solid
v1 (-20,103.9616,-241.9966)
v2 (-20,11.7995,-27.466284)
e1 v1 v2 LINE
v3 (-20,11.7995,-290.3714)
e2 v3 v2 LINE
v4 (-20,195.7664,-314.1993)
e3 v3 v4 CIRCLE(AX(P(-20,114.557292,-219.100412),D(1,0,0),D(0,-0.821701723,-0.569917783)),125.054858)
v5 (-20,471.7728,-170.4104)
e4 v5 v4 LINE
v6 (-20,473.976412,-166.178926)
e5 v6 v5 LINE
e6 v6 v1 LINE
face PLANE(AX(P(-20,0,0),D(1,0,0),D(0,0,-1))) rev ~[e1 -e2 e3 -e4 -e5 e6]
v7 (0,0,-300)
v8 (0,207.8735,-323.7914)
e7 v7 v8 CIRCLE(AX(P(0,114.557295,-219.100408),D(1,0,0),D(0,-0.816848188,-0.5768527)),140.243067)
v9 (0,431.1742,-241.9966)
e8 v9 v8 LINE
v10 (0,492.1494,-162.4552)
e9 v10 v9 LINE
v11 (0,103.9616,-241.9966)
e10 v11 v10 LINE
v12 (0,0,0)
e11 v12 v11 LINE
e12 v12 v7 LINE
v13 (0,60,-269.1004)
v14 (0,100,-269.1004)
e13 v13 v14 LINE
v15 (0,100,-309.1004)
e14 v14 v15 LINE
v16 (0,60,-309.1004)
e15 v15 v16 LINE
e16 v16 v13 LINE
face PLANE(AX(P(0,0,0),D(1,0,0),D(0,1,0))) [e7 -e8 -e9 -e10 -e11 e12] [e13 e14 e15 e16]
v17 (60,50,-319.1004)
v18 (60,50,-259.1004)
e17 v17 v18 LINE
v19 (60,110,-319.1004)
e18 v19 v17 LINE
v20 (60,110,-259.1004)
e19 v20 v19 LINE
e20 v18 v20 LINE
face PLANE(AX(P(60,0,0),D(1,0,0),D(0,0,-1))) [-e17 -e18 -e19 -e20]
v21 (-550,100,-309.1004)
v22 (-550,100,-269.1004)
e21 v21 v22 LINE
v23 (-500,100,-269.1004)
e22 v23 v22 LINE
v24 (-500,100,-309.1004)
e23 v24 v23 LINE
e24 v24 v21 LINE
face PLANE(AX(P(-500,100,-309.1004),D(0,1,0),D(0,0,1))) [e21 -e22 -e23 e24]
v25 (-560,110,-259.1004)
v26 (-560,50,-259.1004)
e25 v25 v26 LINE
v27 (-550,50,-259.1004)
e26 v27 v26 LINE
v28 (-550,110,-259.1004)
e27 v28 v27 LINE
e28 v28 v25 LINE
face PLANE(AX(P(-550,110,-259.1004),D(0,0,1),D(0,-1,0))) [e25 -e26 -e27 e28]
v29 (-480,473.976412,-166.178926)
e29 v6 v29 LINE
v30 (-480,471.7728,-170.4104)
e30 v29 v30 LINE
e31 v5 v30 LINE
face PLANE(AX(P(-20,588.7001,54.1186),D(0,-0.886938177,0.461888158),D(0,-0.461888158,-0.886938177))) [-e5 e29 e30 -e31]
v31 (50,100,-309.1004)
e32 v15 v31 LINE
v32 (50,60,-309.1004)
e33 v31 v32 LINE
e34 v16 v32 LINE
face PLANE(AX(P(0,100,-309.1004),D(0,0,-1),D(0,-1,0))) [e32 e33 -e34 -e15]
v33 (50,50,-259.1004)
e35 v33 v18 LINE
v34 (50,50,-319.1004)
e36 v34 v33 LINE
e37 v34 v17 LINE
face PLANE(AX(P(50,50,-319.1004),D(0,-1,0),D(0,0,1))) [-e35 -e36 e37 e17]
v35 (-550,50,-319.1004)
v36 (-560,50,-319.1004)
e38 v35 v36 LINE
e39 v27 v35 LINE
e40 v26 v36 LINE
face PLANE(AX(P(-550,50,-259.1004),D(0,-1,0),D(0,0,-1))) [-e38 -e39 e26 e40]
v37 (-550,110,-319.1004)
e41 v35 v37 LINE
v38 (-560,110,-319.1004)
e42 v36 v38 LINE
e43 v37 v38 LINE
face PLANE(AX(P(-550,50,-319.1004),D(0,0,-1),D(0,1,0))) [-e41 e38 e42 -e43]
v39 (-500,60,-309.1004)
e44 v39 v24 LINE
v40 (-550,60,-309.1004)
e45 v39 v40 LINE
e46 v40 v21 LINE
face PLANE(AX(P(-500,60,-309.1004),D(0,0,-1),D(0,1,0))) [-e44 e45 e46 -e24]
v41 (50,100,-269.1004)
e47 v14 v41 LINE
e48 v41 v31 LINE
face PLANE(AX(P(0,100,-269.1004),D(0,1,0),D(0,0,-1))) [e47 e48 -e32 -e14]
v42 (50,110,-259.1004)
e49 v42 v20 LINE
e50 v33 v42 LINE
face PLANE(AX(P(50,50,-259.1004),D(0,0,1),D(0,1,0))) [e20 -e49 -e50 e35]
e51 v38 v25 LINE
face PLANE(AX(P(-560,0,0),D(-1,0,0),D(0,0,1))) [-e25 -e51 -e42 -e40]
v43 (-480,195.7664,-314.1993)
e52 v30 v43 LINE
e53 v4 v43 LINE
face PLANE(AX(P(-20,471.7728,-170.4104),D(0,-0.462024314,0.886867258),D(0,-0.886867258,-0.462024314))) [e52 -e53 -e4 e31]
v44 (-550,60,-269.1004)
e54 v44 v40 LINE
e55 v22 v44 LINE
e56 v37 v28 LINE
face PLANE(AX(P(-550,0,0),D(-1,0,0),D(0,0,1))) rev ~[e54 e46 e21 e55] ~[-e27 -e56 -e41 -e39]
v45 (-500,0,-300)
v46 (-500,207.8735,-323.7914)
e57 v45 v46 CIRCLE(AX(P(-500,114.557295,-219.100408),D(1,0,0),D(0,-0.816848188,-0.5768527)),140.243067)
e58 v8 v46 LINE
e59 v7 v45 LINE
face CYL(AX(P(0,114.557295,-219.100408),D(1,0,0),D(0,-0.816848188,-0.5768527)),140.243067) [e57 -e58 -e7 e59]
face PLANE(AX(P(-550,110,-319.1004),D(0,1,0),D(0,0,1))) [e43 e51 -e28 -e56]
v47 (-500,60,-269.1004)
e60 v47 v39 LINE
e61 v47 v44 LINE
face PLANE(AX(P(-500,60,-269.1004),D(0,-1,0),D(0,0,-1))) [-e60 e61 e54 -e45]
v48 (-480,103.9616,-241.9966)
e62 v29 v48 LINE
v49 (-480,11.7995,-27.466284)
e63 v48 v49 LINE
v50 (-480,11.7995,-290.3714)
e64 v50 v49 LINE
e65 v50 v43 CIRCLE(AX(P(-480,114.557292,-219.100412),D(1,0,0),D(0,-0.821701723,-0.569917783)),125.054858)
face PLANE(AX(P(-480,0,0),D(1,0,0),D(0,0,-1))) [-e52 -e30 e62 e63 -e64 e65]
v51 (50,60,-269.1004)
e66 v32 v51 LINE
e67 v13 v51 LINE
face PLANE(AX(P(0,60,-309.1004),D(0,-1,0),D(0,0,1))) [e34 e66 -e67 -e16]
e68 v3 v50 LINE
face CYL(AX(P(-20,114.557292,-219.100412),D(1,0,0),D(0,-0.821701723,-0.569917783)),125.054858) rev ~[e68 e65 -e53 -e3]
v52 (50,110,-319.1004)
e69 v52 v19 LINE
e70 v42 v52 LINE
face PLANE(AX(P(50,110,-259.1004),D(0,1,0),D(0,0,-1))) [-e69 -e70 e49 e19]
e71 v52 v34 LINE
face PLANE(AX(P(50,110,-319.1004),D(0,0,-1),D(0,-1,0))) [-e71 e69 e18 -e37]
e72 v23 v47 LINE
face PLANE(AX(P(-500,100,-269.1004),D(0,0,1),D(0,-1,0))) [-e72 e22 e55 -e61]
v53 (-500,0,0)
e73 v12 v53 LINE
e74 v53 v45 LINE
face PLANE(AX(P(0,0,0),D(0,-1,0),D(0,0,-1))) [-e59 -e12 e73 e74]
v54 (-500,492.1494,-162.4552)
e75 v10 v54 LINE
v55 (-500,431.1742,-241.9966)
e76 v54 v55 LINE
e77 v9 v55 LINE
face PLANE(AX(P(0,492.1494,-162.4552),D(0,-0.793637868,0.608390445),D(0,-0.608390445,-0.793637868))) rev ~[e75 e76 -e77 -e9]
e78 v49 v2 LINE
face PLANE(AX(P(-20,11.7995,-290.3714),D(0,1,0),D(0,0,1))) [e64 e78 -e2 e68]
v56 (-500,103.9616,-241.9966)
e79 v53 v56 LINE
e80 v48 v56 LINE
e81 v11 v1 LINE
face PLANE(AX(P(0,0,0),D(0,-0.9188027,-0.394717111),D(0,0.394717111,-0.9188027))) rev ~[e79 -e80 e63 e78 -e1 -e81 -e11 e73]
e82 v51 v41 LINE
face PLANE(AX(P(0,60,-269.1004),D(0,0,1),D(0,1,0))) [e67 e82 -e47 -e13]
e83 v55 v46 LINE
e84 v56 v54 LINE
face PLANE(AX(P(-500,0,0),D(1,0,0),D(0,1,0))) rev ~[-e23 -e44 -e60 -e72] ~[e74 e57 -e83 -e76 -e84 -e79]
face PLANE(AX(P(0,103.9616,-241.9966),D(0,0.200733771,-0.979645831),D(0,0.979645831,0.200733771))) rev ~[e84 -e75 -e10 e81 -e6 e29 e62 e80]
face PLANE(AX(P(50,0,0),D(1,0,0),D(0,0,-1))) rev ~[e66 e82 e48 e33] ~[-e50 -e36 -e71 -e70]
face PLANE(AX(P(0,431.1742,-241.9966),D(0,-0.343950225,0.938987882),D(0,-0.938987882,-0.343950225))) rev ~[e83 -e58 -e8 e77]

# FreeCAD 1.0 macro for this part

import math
import FreeCAD as App
import Part
import Sketcher
Q = App.Units.Quantity


def add_polygon(sketch, points):
    """Adds a closed chain of lines whose ends are joined by coincident constraints."""
    first, n = sketch.GeometryCount, len(points)
    for a, b in zip(points, points[1:] + points[:1]):
        sketch.addGeometry(Part.LineSegment(App.Vector(*a, 0), App.Vector(*b, 0)), False)
    for i in range(n):
        sketch.addConstraint(Sketcher.Constraint("Coincident", first + i, 2, first + (i + 1) % n, 1))

doc = App.newDocument("Part")
body = doc.addObject("PartDesign::Body", "Body")

sketch1 = body.newObject("Sketcher::SketchObject", "Sketch")
sketch1.AttachmentSupport = (doc.getObject("YZ_Plane"), [""])
sketch1.MapMode = "FlatFace"
sketch1.addGeometry([
    Part.LineSegment(App.Vector(104, -242, 0), App.Vector(0, 0, 0)),
    Part.LineSegment(App.Vector(0, 0, 0), App.Vector(0, -300, 0)),
    Part.ArcOfCircle(Part.Circle(App.Vector(115, -219, 0), App.Vector(0, 0, 1), 140), math.radians(-145), math.radians(-48)),
    Part.LineSegment(App.Vector(208, -324, 0), App.Vector(431, -242, 0)),
    Part.LineSegment(App.Vector(431, -242, 0), App.Vector(492, -162, 0)),
    Part.LineSegment(App.Vector(492, -162, 0), App.Vector(104, -242, 0)),
], False)
sketch1.addConstraint([
    Sketcher.Constraint("Coincident", 0, 2, 1, 1),
    Sketcher.Constraint("Coincident", 1, 2, 2, 1),
    Sketcher.Constraint("Coincident", 2, 2, 3, 1),
    Sketcher.Constraint("Coincident", 3, 2, 4, 1),
    Sketcher.Constraint("Coincident", 4, 2, 5, 1),
    Sketcher.Constraint("Coincident", 5, 2, 0, 1),
    Sketcher.Constraint("Vertical", 1),
    Sketcher.Constraint("Coincident", 0, 2, -1, 1),
    Sketcher.Constraint("Horizontal", 3, 2, 5, 2),
    Sketcher.Constraint("DistanceY", 1, 2, 1, 1, 300.0),
    Sketcher.Constraint("Radius", 2, 140.243),
    Sketcher.Constraint("Angle", 5, Q("-168.4201 deg")),
    Sketcher.Constraint("Distance", 3, 237.81),
    Sketcher.Constraint("DistanceY", 2, 2, 2, 3, 104.691),
    Sketcher.Constraint("DistanceX", 2, 3, 3, 2, 316.617),
    Sketcher.Constraint("DistanceX", 2, 2, 4, 2, 284.276),
    Sketcher.Constraint("DistanceX", 5, 2, 2, 2, 103.912),
    Sketcher.Constraint("Distance", 0, 263.3826),
])
pad1 = body.newObject("PartDesign::Pad", "Pad")
pad1.Profile = sketch1
pad1.Length = 500
pad1.Reversed = True

sketch2 = body.newObject("Sketcher::SketchObject", "Sketch001")
sketch2.AttachmentSupport = (doc.getObject("YZ_Plane"), [""])
sketch2.MapMode = "FlatFace"
sketch2.AttachmentOffset = App.Placement(App.Vector(0, 0, -20), App.Rotation())
sketch2.addGeometry([
    Part.LineSegment(App.Vector(12, 61, 0), App.Vector(12, -290, 0)),
    Part.ArcOfCircle(Part.Circle(App.Vector(115, -219, 0), App.Vector(0, 0, 1), 125), math.radians(-145), math.radians(-50)),
    Part.LineSegment(App.Vector(196, -314, 0), App.Vector(472, -170, 0)),
    Part.LineSegment(App.Vector(472, -170, 0), App.Vector(589, 54, 0)),
    Part.LineSegment(App.Vector(589, 54, 0), App.Vector(12, 61, 0)),
], False)
sketch2.addConstraint([
    Sketcher.Constraint("Coincident", 0, 2, 1, 1),
    Sketcher.Constraint("Coincident", 1, 2, 2, 1),
    Sketcher.Constraint("Coincident", 2, 2, 3, 1),
    Sketcher.Constraint("Coincident", 3, 2, 4, 1),
    Sketcher.Constraint("Coincident", 4, 2, 0, 1),
    Sketcher.Constraint("Vertical", 0),
    Sketcher.Constraint("Radius", 1, 125.0549),
    Sketcher.Constraint("DistanceX", -1, 1, 3, 2, 588.7),
    Sketcher.Constraint("Angle", 3, Q("62.491 deg")),
    Sketcher.Constraint("DistanceY", 1, 3, 2, 2, 48.69),
    Sketcher.Constraint("DistanceY", 0, 2, 3, 2, 344.49),
    Sketcher.Constraint("Distance", 2, 311.215),
    Sketcher.Constraint("DistanceY", 0, 2, 0, 1, 351.6635),
    Sketcher.Constraint("DistanceY", -1, 1, 4, 2, 61.292),
    Sketcher.Constraint("DistanceY", 0, 2, 1, 3, 71.271),
    Sketcher.Constraint("DistanceX", 1, 3, 1, 2, 81.209),
])
pocket1 = body.newObject("PartDesign::Pocket", "Pocket")
pocket1.Profile = sketch2
pocket1.Length = 460

sketch3 = body.newObject("Sketcher::SketchObject", "Sketch002")
sketch3.AttachmentSupport = (doc.getObject("YZ_Plane"), [""])
sketch3.MapMode = "FlatFace"
add_polygon(sketch3, [(100, -309), (100, -269), (60, -269), (60, -309)])
sketch3.addConstraint([
    Sketcher.Constraint("Vertical", 0),
    Sketcher.Constraint("Horizontal", 1),
    Sketcher.Constraint("Vertical", 2),
    Sketcher.Constraint("Horizontal", 3),
    Sketcher.Constraint("Equal", 3, 0),
    Sketcher.Constraint("DistanceX", 1, 2, 1, 1, 40.0),
    Sketcher.Constraint("DistanceX", -1, 1, 1, 2, 60.0),
    Sketcher.Constraint("DistanceY", 0, 2, -1, 1, 269.1004),
])
pad2 = body.newObject("PartDesign::Pad", "Pad001")
pad2.Profile = sketch3
pad2.Length = 50

sketch4 = body.newObject("Sketcher::SketchObject", "Sketch003")
sketch4.AttachmentSupport = (doc.getObject("YZ_Plane"), [""])
sketch4.MapMode = "FlatFace"
sketch4.AttachmentOffset = App.Placement(App.Vector(0, 0, 50), App.Rotation())
add_polygon(sketch4, [(110, -319), (110, -259), (50, -259), (50, -319)])
sketch4.addConstraint([
    Sketcher.Constraint("Vertical", 0),
    Sketcher.Constraint("Horizontal", 1),
    Sketcher.Constraint("Vertical", 2),
    Sketcher.Constraint("Horizontal", 3),
    Sketcher.Constraint("Equal", 3, 0),
    Sketcher.Constraint("DistanceX", 1, 2, 1, 1, 60.0),
    Sketcher.Constraint("DistanceX", -1, 1, 0, 2, 110.0),
    Sketcher.Constraint("DistanceY", 0, 2, -1, 1, 259.1004),
])
pad3 = body.newObject("PartDesign::Pad", "Pad002")
pad3.Profile = sketch4
pad3.Length = 10

sketch5 = body.newObject("Sketcher::SketchObject", "Sketch004")
sketch5.AttachmentSupport = (doc.getObject("YZ_Plane"), [""])
sketch5.MapMode = "FlatFace"
sketch5.AttachmentOffset = App.Placement(App.Vector(0, 0, -500), App.Rotation())
add_polygon(sketch5, [(100, -269), (100, -309), (60, -309), (60, -269)])
sketch5.addConstraint([
    Sketcher.Constraint("Vertical", 0),
    Sketcher.Constraint("Horizontal", 1),
    Sketcher.Constraint("Vertical", 2),
    Sketcher.Constraint("Horizontal", 3),
    Sketcher.Constraint("Equal", 3, 0),
    Sketcher.Constraint("DistanceX", 1, 2, 1, 1, 40.0),
    Sketcher.Constraint("DistanceX", -1, 1, 1, 2, 60.0),
    Sketcher.Constraint("DistanceY", 0, 2, -1, 1, 309.1004),
])
pad4 = body.newObject("PartDesign::Pad", "Pad003")
pad4.Profile = sketch5
pad4.Length = 50
pad4.Reversed = True

sketch6 = body.newObject("Sketcher::SketchObject", "Sketch005")
sketch6.AttachmentSupport = (doc.getObject("YZ_Plane"), [""])
sketch6.MapMode = "FlatFace"
sketch6.AttachmentOffset = App.Placement(App.Vector(0, 0, -550), App.Rotation())
add_polygon(sketch6, [(110, -259), (110, -319), (50, -319), (50, -259)])
sketch6.addConstraint([
    Sketcher.Constraint("Vertical", 0),
    Sketcher.Constraint("Horizontal", 1),
    Sketcher.Constraint("Vertical", 2),
    Sketcher.Constraint("Horizontal", 3),
    Sketcher.Constraint("Equal", 3, 0),
    Sketcher.Constraint("DistanceX", 1, 2, 1, 1, 60.0),
    Sketcher.Constraint("DistanceX", -1, 1, 0, 2, 110.0),
    Sketcher.Constraint("DistanceY", 0, 2, -1, 1, 319.1004),
])
pad5 = body.newObject("PartDesign::Pad", "Pad004")
pad5.Profile = sketch6
pad5.Length = 10
pad5.Reversed = True

doc.recompute()
